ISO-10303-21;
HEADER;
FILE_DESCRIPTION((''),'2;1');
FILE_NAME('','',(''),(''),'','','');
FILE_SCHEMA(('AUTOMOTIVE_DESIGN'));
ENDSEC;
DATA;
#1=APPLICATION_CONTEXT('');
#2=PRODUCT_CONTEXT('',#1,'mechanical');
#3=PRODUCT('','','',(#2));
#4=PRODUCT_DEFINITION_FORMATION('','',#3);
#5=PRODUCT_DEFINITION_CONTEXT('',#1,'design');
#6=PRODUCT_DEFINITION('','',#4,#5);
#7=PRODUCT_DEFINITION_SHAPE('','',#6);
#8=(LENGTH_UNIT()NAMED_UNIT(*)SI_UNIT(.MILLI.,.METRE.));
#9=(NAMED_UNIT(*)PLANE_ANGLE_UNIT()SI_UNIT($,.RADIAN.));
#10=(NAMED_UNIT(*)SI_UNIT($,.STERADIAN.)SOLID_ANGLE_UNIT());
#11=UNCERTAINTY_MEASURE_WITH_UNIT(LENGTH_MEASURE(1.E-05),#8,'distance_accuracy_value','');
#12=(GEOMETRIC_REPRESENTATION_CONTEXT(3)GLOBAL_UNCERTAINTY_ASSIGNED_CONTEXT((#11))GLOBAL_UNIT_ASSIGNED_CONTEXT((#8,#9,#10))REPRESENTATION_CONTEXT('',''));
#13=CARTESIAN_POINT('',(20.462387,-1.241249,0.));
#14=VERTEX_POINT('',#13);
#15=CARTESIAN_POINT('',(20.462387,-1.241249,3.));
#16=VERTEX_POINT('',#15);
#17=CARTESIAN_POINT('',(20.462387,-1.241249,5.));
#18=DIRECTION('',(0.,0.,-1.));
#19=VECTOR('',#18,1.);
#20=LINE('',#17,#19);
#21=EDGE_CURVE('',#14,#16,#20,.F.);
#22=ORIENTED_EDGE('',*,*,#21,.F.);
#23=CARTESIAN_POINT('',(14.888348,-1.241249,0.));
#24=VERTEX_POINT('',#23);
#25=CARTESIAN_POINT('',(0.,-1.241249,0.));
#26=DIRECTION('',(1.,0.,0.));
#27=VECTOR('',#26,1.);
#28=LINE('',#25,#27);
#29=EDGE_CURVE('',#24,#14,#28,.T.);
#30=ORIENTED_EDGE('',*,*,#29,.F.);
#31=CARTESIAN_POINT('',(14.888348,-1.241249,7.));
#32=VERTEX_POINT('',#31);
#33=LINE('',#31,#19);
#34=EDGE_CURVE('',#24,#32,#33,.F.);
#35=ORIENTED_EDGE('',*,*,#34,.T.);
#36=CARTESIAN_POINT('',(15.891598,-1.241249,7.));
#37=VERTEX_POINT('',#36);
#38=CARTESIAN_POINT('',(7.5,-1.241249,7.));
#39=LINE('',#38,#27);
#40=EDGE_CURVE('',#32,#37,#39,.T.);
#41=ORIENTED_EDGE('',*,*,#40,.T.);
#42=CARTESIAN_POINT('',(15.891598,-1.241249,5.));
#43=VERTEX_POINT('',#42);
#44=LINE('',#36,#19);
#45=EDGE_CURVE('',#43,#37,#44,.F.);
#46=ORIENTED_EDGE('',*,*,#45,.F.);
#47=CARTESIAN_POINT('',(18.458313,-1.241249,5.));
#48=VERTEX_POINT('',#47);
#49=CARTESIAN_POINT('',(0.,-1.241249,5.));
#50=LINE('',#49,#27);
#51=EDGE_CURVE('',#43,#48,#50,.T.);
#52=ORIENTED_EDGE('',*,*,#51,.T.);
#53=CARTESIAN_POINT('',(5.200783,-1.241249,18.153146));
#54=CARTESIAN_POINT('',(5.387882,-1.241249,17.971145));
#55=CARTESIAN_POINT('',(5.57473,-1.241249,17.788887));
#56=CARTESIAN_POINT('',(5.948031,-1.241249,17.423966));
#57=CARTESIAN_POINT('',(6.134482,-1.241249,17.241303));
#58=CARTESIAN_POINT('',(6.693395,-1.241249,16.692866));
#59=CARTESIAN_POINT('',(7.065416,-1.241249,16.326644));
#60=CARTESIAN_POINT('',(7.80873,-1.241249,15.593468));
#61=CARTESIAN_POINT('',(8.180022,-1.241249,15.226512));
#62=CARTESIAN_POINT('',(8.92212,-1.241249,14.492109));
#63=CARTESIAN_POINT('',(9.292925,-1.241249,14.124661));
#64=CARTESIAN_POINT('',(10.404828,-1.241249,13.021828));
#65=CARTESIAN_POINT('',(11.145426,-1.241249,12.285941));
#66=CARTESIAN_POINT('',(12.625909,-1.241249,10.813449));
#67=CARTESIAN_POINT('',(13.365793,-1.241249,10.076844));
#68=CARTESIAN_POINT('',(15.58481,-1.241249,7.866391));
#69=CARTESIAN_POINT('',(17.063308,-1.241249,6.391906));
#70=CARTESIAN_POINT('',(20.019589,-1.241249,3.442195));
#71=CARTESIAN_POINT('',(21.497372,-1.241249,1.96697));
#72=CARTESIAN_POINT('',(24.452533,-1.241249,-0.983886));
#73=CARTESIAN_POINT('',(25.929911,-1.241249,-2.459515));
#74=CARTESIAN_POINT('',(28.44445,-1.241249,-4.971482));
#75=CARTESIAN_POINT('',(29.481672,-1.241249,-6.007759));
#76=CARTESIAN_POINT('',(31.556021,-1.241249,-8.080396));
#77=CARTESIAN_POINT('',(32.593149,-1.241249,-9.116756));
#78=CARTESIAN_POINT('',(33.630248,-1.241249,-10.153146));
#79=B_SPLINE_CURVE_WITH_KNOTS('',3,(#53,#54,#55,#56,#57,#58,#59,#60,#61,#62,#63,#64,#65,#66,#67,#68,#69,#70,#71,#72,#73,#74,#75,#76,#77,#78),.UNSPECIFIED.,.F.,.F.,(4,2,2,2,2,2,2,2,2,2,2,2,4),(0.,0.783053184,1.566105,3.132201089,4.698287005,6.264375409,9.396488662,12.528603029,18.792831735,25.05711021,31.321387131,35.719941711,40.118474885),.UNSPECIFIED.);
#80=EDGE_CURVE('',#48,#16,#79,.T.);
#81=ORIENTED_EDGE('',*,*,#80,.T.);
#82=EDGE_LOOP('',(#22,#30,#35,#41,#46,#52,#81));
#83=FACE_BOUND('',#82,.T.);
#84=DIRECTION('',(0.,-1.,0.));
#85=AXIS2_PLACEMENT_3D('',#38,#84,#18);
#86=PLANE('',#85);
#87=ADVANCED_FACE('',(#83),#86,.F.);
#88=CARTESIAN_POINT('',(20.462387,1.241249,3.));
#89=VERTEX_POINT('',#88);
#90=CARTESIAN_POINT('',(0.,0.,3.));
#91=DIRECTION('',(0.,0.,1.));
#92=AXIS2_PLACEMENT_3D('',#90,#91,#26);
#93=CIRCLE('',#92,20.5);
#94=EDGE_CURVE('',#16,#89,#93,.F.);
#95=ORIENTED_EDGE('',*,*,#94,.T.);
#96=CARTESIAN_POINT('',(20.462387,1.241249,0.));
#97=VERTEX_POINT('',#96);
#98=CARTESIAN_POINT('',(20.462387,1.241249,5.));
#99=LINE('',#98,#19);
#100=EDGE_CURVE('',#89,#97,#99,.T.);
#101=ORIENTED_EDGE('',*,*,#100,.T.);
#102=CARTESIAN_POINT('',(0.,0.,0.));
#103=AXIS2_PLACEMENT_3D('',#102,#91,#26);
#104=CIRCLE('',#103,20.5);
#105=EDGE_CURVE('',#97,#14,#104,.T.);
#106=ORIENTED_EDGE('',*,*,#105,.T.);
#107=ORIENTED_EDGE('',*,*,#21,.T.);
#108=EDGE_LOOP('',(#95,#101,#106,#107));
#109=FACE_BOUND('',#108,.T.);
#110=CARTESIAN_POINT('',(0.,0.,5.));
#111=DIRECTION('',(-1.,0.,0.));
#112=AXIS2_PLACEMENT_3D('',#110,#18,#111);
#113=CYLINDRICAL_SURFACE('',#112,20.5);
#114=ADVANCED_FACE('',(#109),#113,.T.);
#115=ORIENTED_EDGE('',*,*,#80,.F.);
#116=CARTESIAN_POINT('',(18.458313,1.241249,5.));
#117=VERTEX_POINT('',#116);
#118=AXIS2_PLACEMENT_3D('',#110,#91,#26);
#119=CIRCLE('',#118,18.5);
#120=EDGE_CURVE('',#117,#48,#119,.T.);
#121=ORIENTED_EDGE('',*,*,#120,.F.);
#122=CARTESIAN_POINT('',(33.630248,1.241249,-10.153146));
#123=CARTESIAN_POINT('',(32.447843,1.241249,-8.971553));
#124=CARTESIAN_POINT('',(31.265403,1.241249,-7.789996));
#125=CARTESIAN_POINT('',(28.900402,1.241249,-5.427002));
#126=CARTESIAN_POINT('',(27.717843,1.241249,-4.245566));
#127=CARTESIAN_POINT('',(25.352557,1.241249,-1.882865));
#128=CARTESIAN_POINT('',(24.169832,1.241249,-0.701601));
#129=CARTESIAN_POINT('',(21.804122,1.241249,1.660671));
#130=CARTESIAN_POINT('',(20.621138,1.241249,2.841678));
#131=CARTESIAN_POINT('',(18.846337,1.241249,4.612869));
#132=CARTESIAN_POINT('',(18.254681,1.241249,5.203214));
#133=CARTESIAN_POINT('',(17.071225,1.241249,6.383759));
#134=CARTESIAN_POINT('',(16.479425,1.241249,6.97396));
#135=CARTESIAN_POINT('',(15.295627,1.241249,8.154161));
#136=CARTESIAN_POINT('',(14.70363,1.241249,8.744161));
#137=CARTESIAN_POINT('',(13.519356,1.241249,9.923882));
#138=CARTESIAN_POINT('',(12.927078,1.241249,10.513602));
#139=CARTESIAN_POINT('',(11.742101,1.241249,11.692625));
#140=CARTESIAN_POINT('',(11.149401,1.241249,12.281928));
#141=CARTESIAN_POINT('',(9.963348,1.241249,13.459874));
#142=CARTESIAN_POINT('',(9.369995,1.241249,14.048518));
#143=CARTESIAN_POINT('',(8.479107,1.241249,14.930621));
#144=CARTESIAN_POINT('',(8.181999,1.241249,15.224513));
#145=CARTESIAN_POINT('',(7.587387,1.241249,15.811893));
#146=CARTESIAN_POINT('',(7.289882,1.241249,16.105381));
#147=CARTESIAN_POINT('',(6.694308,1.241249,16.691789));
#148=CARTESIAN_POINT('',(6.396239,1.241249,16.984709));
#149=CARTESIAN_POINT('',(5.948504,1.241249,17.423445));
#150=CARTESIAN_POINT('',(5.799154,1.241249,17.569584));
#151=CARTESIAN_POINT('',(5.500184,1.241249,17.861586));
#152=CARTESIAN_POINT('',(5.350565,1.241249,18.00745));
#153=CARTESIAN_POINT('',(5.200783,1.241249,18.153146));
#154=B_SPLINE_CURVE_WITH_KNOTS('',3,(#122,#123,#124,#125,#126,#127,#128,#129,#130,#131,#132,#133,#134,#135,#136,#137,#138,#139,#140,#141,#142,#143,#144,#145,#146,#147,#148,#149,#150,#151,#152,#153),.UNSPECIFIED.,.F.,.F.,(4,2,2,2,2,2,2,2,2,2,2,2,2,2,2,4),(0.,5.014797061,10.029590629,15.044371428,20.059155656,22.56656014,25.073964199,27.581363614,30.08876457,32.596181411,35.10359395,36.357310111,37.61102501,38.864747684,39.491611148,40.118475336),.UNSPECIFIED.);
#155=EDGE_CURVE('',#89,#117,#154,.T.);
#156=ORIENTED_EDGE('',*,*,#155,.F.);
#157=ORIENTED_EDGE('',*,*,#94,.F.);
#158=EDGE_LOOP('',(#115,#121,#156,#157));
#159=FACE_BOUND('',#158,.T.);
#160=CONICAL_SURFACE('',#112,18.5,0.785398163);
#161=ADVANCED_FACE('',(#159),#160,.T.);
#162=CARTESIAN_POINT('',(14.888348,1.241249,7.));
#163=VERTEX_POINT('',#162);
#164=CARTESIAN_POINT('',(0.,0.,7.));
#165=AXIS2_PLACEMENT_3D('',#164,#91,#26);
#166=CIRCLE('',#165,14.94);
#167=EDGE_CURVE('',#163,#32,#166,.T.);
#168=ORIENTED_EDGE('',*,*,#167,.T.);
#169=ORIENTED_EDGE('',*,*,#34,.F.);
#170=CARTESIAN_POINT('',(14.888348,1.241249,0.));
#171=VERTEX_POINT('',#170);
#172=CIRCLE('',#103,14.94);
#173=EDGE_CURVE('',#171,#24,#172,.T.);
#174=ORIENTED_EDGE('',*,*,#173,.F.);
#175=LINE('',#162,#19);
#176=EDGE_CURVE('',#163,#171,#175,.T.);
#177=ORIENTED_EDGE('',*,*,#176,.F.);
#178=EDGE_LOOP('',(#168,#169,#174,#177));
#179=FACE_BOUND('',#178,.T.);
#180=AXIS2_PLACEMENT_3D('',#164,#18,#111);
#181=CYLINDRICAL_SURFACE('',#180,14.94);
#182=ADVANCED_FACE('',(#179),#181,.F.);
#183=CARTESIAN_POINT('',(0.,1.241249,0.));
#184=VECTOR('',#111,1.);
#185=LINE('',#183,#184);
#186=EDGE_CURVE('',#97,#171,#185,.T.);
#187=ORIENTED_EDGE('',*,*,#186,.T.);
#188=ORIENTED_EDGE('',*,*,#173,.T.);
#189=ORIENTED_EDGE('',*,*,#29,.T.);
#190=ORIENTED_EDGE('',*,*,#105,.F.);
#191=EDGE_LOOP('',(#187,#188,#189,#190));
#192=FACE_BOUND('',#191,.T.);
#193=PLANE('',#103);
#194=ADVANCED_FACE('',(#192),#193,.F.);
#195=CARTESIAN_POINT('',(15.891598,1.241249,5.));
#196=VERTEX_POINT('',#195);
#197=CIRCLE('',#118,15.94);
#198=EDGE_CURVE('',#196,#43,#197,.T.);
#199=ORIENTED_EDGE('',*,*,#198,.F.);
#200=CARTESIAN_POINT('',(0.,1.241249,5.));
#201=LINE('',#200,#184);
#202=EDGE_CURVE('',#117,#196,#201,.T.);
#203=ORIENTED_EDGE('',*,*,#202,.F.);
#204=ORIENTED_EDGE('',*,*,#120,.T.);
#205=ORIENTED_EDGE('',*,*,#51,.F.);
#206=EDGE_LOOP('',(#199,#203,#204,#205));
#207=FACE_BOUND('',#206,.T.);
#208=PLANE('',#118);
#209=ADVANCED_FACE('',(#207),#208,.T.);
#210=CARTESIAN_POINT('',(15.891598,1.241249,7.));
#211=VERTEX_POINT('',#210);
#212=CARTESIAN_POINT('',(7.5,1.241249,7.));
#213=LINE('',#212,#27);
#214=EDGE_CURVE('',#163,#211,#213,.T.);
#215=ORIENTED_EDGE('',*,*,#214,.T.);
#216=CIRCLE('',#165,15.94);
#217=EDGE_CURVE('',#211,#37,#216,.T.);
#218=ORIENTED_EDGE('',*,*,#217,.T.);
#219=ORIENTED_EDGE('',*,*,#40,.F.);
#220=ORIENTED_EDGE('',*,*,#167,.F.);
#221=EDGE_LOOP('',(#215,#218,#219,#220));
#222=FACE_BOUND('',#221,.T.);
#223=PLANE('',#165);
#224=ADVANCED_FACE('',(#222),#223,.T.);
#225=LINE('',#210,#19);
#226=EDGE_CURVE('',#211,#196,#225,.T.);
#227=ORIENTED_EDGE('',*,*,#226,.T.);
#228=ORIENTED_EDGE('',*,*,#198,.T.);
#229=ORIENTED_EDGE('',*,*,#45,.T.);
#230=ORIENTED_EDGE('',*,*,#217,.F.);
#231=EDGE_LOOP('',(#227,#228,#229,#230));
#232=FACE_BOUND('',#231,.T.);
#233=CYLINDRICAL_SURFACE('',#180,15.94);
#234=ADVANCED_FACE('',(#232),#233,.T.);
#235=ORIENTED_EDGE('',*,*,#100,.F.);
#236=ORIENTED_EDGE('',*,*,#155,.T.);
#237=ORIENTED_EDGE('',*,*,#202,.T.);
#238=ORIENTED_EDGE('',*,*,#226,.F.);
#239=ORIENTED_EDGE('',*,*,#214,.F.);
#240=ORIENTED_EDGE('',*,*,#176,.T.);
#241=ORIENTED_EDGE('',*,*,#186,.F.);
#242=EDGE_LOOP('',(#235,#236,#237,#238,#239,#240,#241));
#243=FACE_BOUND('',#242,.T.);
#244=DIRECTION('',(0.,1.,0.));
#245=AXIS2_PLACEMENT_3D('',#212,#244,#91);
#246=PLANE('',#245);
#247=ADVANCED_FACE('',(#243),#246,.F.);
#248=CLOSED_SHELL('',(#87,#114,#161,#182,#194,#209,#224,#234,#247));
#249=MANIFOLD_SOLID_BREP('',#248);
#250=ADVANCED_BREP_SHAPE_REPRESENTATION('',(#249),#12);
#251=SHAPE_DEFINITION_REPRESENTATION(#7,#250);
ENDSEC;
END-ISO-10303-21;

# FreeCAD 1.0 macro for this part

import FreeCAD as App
import Part
import Sketcher
Q = App.Units.Quantity


def edges_at(feature, points):
    """Names of the edges that pass closest to the given points."""
    edges = feature.Shape.Edges
    near = lambda p: min(range(len(edges)), key=lambda i: edges[i].distToShape(Part.Vertex(*p))[0])
    return sorted({f"Edge{near(p) + 1}" for p in points})

doc = App.newDocument("Part")
body = doc.addObject("PartDesign::Body", "Body")

# Sketch on XY plane
sketch1 = body.newObject("Sketcher::SketchObject", "Sketch")
sketch1.AttachmentSupport = (doc.getObject("XY_Plane"), [""])
sketch1.MapMode = "FlatFace"
sketch1.addGeometry([
    Part.Circle(App.Vector(0, 0, 0), App.Vector(0, 0, 1), 15.94),
    Part.Circle(App.Vector(0, 0, 0), App.Vector(0, 0, 1), 14.94),
], False)
sketch1.addConstraint([
    Sketcher.Constraint("Coincident", 0, 3, -1, 1),
    Sketcher.Constraint("Coincident", 1, 3, -1, 1),
    Sketcher.Constraint("Diameter", 0, Q("31.88 mm")),
    Sketcher.Constraint("Diameter", 1, Q("29.88 mm")),
])
pad1 = body.newObject("PartDesign::Pad", "Pad")
pad1.Profile = sketch1
pad1.Length = 7

# Sketch on XY plane
sketch2 = body.newObject("Sketcher::SketchObject", "Sketch001")
sketch2.AttachmentSupport = (doc.getObject("XY_Plane"), [""])
sketch2.MapMode = "FlatFace"
sketch2.addGeometry([
    Part.Circle(App.Vector(0, 0, 0), App.Vector(0, 0, 1), 20.5),
    Part.Circle(App.Vector(0, 0, 0), App.Vector(0, 0, 1), 15.94),
], False)
sketch2.addConstraint([
    Sketcher.Constraint("Coincident", 0, 3, -1, 1),
    Sketcher.Constraint("Coincident", 1, 3, -1, 1),
    Sketcher.Constraint("Diameter", 0, Q("41 mm")),
    Sketcher.Constraint("Diameter", 1, Q("31.88 mm")),
])
pad2 = body.newObject("PartDesign::Pad", "Pad001")
pad2.Profile = sketch2
pad2.Length = 5
doc.recompute()

chamfer = body.newObject("PartDesign::Chamfer", "Chamfer")
chamfer.Base = (pad2, edges_at(pad2, [(-20.5, 0, 5)]))
chamfer.Size = 2

# Sketch on YZ plane
sketch3 = body.newObject("Sketcher::SketchObject", "Sketch002")
sketch3.AttachmentSupport = (doc.getObject("YZ_Plane"), [""])
sketch3.MapMode = "FlatFace"
sketch3.AttachmentOffset = App.Placement(App.Vector(0, 0, 20.5), App.Rotation())
sketch3.addGeometry([
    Part.LineSegment(App.Vector(1.241249, 7, 0), App.Vector(-1.241249, 7, 0)),
    Part.LineSegment(App.Vector(-1.241249, 7, 0), App.Vector(-1.241249, -1, 0)),
    Part.LineSegment(App.Vector(-1.241249, -1, 0), App.Vector(1.241249, -1, 0)),
    Part.LineSegment(App.Vector(1.241249, -1, 0), App.Vector(1.241249, 7, 0)),
], False)
sketch3.addConstraint([
    Sketcher.Constraint("Coincident", 0, 2, 1, 1),
    Sketcher.Constraint("Coincident", 1, 2, 2, 1),
    Sketcher.Constraint("Coincident", 2, 2, 3, 1),
    Sketcher.Constraint("Coincident", 3, 2, 0, 1),
    Sketcher.Constraint("Horizontal", 0),
    Sketcher.Constraint("Vertical", 1),
    Sketcher.Constraint("Horizontal", 2),
    Sketcher.Constraint("Vertical", 3),
    Sketcher.Constraint("DistanceY", 1, 2, 1, 1, Q("8 mm")),
    Sketcher.Constraint("DistanceY", -1, 1, 0, 2, Q("7 mm")),
    Sketcher.Constraint("DistanceX", 0, 2, 0, 1, Q("2.482498 mm")),
    Sketcher.Constraint("DistanceX", 0, 2, -1, 1, Q("1.241249 mm")),
])
pocket1 = body.newObject("PartDesign::Pocket", "Pocket")
pocket1.Profile = sketch3
pocket1.Length = 13

doc.recompute()
